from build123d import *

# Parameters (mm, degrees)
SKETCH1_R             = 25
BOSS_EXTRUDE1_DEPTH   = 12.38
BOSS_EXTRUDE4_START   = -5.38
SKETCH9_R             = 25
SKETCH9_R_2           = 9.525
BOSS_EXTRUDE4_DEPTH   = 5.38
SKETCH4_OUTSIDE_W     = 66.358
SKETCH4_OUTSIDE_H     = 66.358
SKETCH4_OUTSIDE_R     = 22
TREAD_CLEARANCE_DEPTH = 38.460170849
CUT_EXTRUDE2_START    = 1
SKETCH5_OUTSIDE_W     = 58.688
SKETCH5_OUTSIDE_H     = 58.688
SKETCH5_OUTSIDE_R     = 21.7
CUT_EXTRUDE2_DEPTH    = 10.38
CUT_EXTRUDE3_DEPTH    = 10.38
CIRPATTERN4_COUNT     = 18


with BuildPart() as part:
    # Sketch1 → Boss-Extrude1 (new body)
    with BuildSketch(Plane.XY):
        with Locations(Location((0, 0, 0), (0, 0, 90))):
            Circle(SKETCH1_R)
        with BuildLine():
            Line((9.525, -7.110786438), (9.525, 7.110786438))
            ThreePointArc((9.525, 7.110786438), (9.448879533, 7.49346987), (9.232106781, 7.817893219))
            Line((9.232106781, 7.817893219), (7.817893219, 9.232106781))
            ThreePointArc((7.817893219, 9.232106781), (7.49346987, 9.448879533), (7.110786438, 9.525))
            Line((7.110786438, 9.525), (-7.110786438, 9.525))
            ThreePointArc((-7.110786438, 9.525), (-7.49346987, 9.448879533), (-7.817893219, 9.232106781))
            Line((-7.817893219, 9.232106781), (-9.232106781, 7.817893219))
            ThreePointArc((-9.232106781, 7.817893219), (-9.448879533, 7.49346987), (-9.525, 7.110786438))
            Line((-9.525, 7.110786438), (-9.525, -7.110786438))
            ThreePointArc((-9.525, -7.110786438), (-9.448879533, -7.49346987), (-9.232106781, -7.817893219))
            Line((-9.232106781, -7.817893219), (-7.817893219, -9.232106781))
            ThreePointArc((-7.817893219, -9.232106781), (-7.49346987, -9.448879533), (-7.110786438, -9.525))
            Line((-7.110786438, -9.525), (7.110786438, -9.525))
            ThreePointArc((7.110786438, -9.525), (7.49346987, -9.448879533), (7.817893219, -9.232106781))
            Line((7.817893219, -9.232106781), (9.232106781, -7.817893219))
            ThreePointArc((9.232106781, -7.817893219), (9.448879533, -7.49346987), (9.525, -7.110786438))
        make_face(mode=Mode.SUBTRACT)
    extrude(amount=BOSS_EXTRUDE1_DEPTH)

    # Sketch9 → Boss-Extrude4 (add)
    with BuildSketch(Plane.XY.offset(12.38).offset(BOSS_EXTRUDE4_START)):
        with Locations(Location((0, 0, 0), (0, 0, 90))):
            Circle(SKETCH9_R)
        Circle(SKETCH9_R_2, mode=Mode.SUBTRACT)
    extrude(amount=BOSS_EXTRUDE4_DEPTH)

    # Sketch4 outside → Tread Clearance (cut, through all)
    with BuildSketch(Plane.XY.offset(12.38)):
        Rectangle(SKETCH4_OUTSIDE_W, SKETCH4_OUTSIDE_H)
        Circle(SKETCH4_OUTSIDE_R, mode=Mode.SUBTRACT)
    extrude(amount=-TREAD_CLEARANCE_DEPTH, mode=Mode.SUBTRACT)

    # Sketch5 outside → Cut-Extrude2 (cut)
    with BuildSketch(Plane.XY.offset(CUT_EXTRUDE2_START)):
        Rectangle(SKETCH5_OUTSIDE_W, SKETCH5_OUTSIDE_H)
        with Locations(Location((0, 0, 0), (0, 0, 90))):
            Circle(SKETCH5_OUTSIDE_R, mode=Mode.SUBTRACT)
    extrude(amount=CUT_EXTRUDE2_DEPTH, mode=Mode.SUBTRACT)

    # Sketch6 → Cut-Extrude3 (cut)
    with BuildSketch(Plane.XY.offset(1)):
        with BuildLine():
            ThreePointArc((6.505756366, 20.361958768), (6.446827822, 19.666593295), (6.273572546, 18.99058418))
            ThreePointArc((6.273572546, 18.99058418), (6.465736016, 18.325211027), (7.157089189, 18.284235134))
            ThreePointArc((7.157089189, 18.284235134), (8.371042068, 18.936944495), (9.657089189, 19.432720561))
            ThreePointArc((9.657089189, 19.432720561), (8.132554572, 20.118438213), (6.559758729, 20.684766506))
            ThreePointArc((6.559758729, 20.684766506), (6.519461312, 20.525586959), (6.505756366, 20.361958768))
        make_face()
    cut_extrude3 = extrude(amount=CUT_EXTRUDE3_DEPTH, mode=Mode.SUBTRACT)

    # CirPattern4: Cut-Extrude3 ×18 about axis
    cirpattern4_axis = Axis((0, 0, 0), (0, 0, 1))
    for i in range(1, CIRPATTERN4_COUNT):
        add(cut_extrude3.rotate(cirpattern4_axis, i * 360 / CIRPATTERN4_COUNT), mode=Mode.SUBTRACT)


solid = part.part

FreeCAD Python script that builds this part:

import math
import FreeCAD as App
import Part
import Sketcher


def add_polygon(sketch, points):
    """Adds a closed chain of lines whose ends are joined by coincident constraints."""
    first, n = sketch.GeometryCount, len(points)
    for a, b in zip(points, points[1:] + points[:1]):
        sketch.addGeometry(Part.LineSegment(App.Vector(*a, 0), App.Vector(*b, 0)), False)
    for i in range(n):
        sketch.addConstraint(Sketcher.Constraint("Coincident", first + i, 2, first + (i + 1) % n, 1))

doc = App.newDocument("Part")
body = doc.addObject("PartDesign::Body", "Body")

# Sketch on XY plane
sketch1 = doc.addObject("Sketcher::SketchObject", "Sketch")
body.addObject(sketch1)
sketch1.AttachmentSupport = (doc.XY_Plane, [""])
sketch1.MapMode = "FlatFace"
sketch1.addGeometry([
    Part.Circle(App.Vector(0, 0, 0), App.Vector(0, 0, 1), 25),  # 0
    Part.LineSegment(App.Vector(9.525, 7.110786, 0), App.Vector(9.525, -7.110786, 0)),  # 1
    Part.ArcOfCircle(Part.Circle(App.Vector(8.525, -7.110786, 0), App.Vector(0, 0, 1), 1), math.radians(-45), math.radians(0)),  # 2
    Part.LineSegment(App.Vector(9.232107, -7.817893, 0), App.Vector(7.817893, -9.232107, 0)),  # 3
    Part.ArcOfCircle(Part.Circle(App.Vector(7.110786, -8.525, 0), App.Vector(0, 0, 1), 1), math.radians(-90), math.radians(-45)),  # 4
    Part.LineSegment(App.Vector(7.110786, -9.525, 0), App.Vector(-7.110786, -9.525, 0)),  # 5
    Part.ArcOfCircle(Part.Circle(App.Vector(-7.110786, -8.525, 0), App.Vector(0, 0, 1), 1), math.radians(-135), math.radians(-90)),  # 6
    Part.LineSegment(App.Vector(-7.817893, -9.232107, 0), App.Vector(-9.232107, -7.817893, 0)),  # 7
    Part.ArcOfCircle(Part.Circle(App.Vector(-8.525, -7.110786, 0), App.Vector(0, 0, 1), 1), math.radians(180), math.radians(225)),  # 8
    Part.LineSegment(App.Vector(-9.525, -7.110786, 0), App.Vector(-9.525, 7.110786, 0)),  # 9
    Part.ArcOfCircle(Part.Circle(App.Vector(-8.525, 7.110786, 0), App.Vector(0, 0, 1), 1), math.radians(135), math.radians(180)),  # 10
    Part.LineSegment(App.Vector(-9.232107, 7.817893, 0), App.Vector(-7.817893, 9.232107, 0)),  # 11
    Part.ArcOfCircle(Part.Circle(App.Vector(-7.110786, 8.525, 0), App.Vector(0, 0, 1), 1), math.radians(90), math.radians(135)),  # 12
    Part.LineSegment(App.Vector(-7.110786, 9.525, 0), App.Vector(7.110786, 9.525, 0)),  # 13
    Part.ArcOfCircle(Part.Circle(App.Vector(7.110786, 8.525, 0), App.Vector(0, 0, 1), 1), math.radians(45), math.radians(90)),  # 14
    Part.LineSegment(App.Vector(7.817893, 9.232107, 0), App.Vector(9.232107, 7.817893, 0)),  # 15
    Part.ArcOfCircle(Part.Circle(App.Vector(8.525, 7.110786, 0), App.Vector(0, 0, 1), 1), math.radians(0), math.radians(45)),  # 16
], False)
sketch1.addConstraint([
    Sketcher.Constraint("Tangent", 1, 2, 2, 2),
    Sketcher.Constraint("Tangent", 2, 1, 3, 1),
    Sketcher.Constraint("Tangent", 3, 2, 4, 2),
    Sketcher.Constraint("Tangent", 4, 1, 5, 1),
    Sketcher.Constraint("Tangent", 5, 2, 6, 2),
    Sketcher.Constraint("Tangent", 6, 1, 7, 1),
    Sketcher.Constraint("Tangent", 7, 2, 8, 2),
    Sketcher.Constraint("Tangent", 8, 1, 9, 1),
    Sketcher.Constraint("Tangent", 9, 2, 10, 2),
    Sketcher.Constraint("Tangent", 10, 1, 11, 1),
    Sketcher.Constraint("Tangent", 11, 2, 12, 2),
    Sketcher.Constraint("Tangent", 12, 1, 13, 1),
    Sketcher.Constraint("Tangent", 13, 2, 14, 2),
    Sketcher.Constraint("Tangent", 14, 1, 15, 1),
    Sketcher.Constraint("Tangent", 15, 2, 16, 2),
    Sketcher.Constraint("Tangent", 16, 1, 1, 1),
    Sketcher.Constraint("Vertical", 1),
    Sketcher.Constraint("Horizontal", 5),
    Sketcher.Constraint("Vertical", 9),
    Sketcher.Constraint("Horizontal", 13),
    Sketcher.Constraint("Coincident", 0, 3, -1, 1),
    Sketcher.Constraint("Equal", 2, 4),
    Sketcher.Constraint("Equal", 4, 6),
    Sketcher.Constraint("Equal", 6, 8),
    Sketcher.Constraint("Equal", 8, 10),
    Sketcher.Constraint("Equal", 10, 12),
    Sketcher.Constraint("Equal", 12, 14),
    Sketcher.Constraint("Equal", 14, 16),
    Sketcher.Constraint("Symmetric", 2, 3, 10, 3, -1, 1),
    Sketcher.Constraint("Symmetric", 4, 3, 12, 3, -1, 1),
    Sketcher.Constraint("Symmetric", 6, 1, 14, 1, -1, 1),
    Sketcher.Constraint("Symmetric", 3, 2, 6, 1, -2),
    Sketcher.Constraint("Perpendicular", 3, 7),
    Sketcher.Constraint("Equal", 13, 1),
    Sketcher.Constraint("Diameter", 0, 50.0),
    Sketcher.Constraint("Radius", 2, 1.0),
    Sketcher.Constraint("Distance", 3, 2.0),
    Sketcher.Constraint("DistanceX", 8, 3, 2, 3, 17.05),
])
pad1 = doc.addObject("PartDesign::Pad", "Pad")
body.addObject(pad1)
pad1.Profile = sketch1
pad1.Length = 12.38

# Sketch on XY plane
sketch2 = doc.addObject("Sketcher::SketchObject", "Sketch001")
body.addObject(sketch2)
sketch2.AttachmentSupport = (doc.XY_Plane, [""])
sketch2.MapMode = "FlatFace"
sketch2.AttachmentOffset = App.Placement(App.Vector(0, 0, 7), App.Rotation())
sketch2.addGeometry([
    Part.Circle(App.Vector(0, 0, 0), App.Vector(0, 0, 1), 25),
    Part.Circle(App.Vector(0, 0, 0), App.Vector(0, 0, 1), 9.525),
], False)
sketch2.addConstraint([
    Sketcher.Constraint("Coincident", 0, 3, -1, 1),
    Sketcher.Constraint("Coincident", 1, 3, -1, 1),
    Sketcher.Constraint("Diameter", 0, 50.0),
    Sketcher.Constraint("Diameter", 1, 19.05),
])
pad2 = doc.addObject("PartDesign::Pad", "Pad001")
body.addObject(pad2)
pad2.Profile = sketch2
pad2.Length = 5.38

# Sketch on XY plane
sketch3 = doc.addObject("Sketcher::SketchObject", "Sketch002")
body.addObject(sketch3)
sketch3.AttachmentSupport = (doc.XY_Plane, [""])
sketch3.MapMode = "FlatFace"
sketch3.AttachmentOffset = App.Placement(App.Vector(0, 0, 12.38), App.Rotation())
add_polygon(sketch3, [(-33.179, 33.179), (-33.179, -33.179), (33.179, -33.179), (33.179, 33.179)])  # lines 0-3
sketch3.addGeometry(Part.Circle(App.Vector(0, 0, 0), App.Vector(0, 0, 1), 22), False)  # 4
sketch3.addConstraint([
    Sketcher.Constraint("Vertical", 0),
    Sketcher.Constraint("Horizontal", 1),
    Sketcher.Constraint("Vertical", 2),
    Sketcher.Constraint("Horizontal", 3),
    Sketcher.Constraint("Coincident", 4, 3, -1, 1),
    Sketcher.Constraint("Symmetric", 0, 2, 2, 2, -1, 1),
    Sketcher.Constraint("Equal", 3, 0),
    Sketcher.Constraint("Diameter", 4, 44.0),
    Sketcher.Constraint("DistanceX", 1, 1, 1, 2, 66.358),
])
pocket1 = doc.addObject("PartDesign::Pocket", "Pocket")
body.addObject(pocket1)
pocket1.Profile = sketch3
pocket1.Type = "ThroughAll"

# Sketch on XY plane
sketch4 = doc.addObject("Sketcher::SketchObject", "Sketch003")
body.addObject(sketch4)
sketch4.AttachmentSupport = (doc.XY_Plane, [""])
sketch4.MapMode = "FlatFace"
sketch4.AttachmentOffset = App.Placement(App.Vector(0, 0, 1), App.Rotation())
add_polygon(sketch4, [(-29.344, 29.344), (-29.344, -29.344), (29.344, -29.344), (29.344, 29.344)])  # lines 0-3
sketch4.addGeometry(Part.Circle(App.Vector(0, 0, 0), App.Vector(0, 0, 1), 21.7), False)  # 4
sketch4.addConstraint([
    Sketcher.Constraint("Vertical", 0),
    Sketcher.Constraint("Horizontal", 1),
    Sketcher.Constraint("Vertical", 2),
    Sketcher.Constraint("Horizontal", 3),
    Sketcher.Constraint("Coincident", 4, 3, -1, 1),
    Sketcher.Constraint("Symmetric", 0, 2, 2, 2, -1, 1),
    Sketcher.Constraint("Equal", 3, 0),
    Sketcher.Constraint("Diameter", 4, 43.4),
    Sketcher.Constraint("DistanceX", 1, 1, 1, 2, 58.688),
])
pocket2 = doc.addObject("PartDesign::Pocket", "Pocket001")
body.addObject(pocket2)
pocket2.Profile = sketch4
pocket2.Length = 10.38
pocket2.Reversed = True

# Sketch on XY plane
sketch5 = doc.addObject("Sketcher::SketchObject", "Sketch004")
body.addObject(sketch5)
sketch5.AttachmentSupport = (doc.XY_Plane, [""])
sketch5.MapMode = "FlatFace"
sketch5.AttachmentOffset = App.Placement(App.Vector(0, 0, 1), App.Rotation())
sketch5.addGeometry([
    Part.ArcOfCircle(Part.Circle(App.Vector(2.30576, 20.367707, 0), App.Vector(0, 0, 1), 4.2), math.radians(-19.140531), math.radians(-0.07841)),  # 0
    Part.ArcOfCircle(Part.Circle(App.Vector(6.840403, 18.793852, 0), App.Vector(0, 0, 1), 0.6), math.radians(160.859469), math.radians(301.857641)),  # 1
    Part.ArcOfCircle(Part.Circle(App.Vector(12.963005, 8.941252, 0), App.Vector(0, 0, 1), 11), math.radians(107.489908), math.radians(121.857641)),  # 2
    Part.ArcOfCircle(Part.Circle(App.Vector(0, 0, 0), App.Vector(0, 0, 1), 21.7), math.radians(63.574924), math.radians(72.40462)),  # 3
    Part.ArcOfCircle(Part.Circle(App.Vector(7.505755, 20.36059, 0), App.Vector(0, 0, 1), 1), math.radians(161.084324), math.radians(179.92159)),  # 4
], False)
sketch5.addConstraint([
    Sketcher.Constraint("Tangent", 0, 1, 1, 1),
    Sketcher.Constraint("Tangent", 1, 2, 2, 2),
    Sketcher.Constraint("Coincident", 2, 1, 3, 1),
    Sketcher.Constraint("Coincident", 3, 2, 4, 1),
    Sketcher.Constraint("Tangent", 4, 2, 0, 2),
    Sketcher.Constraint("Coincident", 3, 3, -1, 1),
    Sketcher.Constraint("Radius", 2, 11.0),
    Sketcher.Constraint("Radius", 4, 1.0),
    Sketcher.Constraint("Radius", 0, 4.2),
    Sketcher.Constraint("Radius", 1, 0.6),
    Sketcher.Constraint("Radius", 3, 21.7),
    Sketcher.Constraint("DistanceX", 1, 2, 2, 1, 2.5),
    Sketcher.Constraint("DistanceY", 2, 3, 1, 3, 9.852601),
    Sketcher.Constraint("DistanceX", -1, 1, 0, 3, 2.30576),
    Sketcher.Constraint("DistanceY", -1, 1, 2, 3, 8.941252),
    Sketcher.Constraint("DistanceY", -1, 1, 4, 3, 20.36059),
])
pocket3 = doc.addObject("PartDesign::Pocket", "Pocket002")
body.addObject(pocket3)
pocket3.Profile = sketch5
pocket3.Length = 10.38
pocket3.Reversed = True
doc.recompute()

polarpattern = doc.addObject("PartDesign::PolarPattern", "PolarPattern")
body.addObject(polarpattern)
polarpattern.Originals = [pocket3]
polarpattern.Axis = (doc.Z_Axis, [""])
polarpattern.Angle = 360
polarpattern.Occurrences = 18
body.Tip = polarpattern

doc.recompute()
